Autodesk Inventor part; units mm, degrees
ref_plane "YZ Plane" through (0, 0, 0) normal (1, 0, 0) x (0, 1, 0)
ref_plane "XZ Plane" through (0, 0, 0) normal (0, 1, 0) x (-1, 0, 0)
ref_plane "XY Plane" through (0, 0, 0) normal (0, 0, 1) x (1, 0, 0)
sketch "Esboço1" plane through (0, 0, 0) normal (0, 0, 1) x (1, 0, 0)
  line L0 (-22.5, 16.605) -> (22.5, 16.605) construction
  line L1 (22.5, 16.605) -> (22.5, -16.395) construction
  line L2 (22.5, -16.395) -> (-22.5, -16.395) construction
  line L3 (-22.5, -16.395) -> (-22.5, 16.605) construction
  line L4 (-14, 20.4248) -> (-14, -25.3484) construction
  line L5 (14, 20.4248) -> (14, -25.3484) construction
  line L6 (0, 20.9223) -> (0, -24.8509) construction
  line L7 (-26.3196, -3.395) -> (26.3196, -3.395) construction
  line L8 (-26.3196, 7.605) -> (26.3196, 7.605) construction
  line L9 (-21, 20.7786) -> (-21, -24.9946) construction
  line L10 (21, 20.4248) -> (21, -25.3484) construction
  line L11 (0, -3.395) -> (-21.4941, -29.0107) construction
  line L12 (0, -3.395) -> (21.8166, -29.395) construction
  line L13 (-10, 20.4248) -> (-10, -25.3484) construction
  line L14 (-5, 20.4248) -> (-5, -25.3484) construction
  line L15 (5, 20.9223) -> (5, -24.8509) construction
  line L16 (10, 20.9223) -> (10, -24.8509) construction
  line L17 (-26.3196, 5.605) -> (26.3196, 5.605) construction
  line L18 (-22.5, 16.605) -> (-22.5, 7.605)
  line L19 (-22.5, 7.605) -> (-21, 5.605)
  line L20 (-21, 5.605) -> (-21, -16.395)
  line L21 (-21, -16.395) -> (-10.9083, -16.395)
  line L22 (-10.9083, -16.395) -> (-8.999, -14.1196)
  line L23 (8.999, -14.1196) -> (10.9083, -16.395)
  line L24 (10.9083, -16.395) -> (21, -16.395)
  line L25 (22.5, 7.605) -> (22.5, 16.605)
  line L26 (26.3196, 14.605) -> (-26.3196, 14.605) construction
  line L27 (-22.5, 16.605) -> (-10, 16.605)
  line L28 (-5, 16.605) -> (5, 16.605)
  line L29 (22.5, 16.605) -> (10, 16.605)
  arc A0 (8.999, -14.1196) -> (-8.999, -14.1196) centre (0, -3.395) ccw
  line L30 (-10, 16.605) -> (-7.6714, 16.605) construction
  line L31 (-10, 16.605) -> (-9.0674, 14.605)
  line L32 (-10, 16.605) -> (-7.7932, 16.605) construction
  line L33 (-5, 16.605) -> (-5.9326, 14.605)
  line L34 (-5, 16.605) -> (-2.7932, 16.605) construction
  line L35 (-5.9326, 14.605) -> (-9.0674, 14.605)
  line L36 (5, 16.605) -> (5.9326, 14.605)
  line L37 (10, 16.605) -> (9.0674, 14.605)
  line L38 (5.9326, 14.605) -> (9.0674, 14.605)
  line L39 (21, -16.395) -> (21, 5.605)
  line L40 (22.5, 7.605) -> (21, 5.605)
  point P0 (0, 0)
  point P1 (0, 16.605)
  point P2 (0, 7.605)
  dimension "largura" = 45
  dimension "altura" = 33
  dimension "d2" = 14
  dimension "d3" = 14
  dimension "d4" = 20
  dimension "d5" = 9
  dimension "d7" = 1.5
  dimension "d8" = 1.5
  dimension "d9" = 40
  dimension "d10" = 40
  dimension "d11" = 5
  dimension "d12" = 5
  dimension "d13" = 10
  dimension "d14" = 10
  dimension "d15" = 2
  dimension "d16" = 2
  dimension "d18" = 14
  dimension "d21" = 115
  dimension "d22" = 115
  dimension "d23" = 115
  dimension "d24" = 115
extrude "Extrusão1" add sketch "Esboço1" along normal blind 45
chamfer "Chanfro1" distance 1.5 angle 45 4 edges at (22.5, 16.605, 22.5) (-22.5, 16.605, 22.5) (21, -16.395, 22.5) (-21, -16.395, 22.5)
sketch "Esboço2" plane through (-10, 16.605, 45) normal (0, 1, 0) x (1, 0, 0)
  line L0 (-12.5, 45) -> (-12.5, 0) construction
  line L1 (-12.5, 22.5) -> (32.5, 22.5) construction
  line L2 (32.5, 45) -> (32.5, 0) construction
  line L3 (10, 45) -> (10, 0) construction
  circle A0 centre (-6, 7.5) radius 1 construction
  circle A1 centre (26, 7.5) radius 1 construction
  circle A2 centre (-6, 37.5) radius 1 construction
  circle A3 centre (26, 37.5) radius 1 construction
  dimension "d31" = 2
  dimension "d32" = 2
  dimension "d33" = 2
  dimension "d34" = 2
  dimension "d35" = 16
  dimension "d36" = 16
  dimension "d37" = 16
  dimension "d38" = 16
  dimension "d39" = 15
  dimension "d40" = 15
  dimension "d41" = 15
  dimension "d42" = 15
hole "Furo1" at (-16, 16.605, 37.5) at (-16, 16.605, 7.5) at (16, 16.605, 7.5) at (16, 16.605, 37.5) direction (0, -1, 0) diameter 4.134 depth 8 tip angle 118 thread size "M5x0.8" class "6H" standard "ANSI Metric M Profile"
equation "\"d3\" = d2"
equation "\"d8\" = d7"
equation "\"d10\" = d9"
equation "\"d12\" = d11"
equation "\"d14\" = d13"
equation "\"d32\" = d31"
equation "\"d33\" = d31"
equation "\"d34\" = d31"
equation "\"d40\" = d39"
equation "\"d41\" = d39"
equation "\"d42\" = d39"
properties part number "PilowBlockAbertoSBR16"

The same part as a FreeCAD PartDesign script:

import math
import FreeCAD as App
import Part
import Sketcher
Q = App.Units.Quantity


def edges_at(feature, points):
    """Names of the edges that pass closest to the given points."""
    edges = feature.Shape.Edges
    near = lambda p: min(range(len(edges)), key=lambda i: edges[i].distToShape(Part.Vertex(*p))[0])
    return sorted({f"Edge{near(p) + 1}" for p in points})

doc = App.newDocument("Part")
body = doc.addObject("PartDesign::Body", "Body")

sketch1 = body.newObject("Sketcher::SketchObject", "Sketch")
sketch1.AttachmentSupport = (doc.getObject("XY_Plane"), [""])
sketch1.MapMode = "FlatFace"
sketch1.addGeometry(Part.LineSegment(App.Vector(-10, 16.6, 0), App.Vector(-22.5, 16.6, 0)), False)
sketch1.addGeometry(Part.LineSegment(App.Vector(-22.5, 16.6, 0), App.Vector(-22.5, 7.6, 0)), False)
sketch1.addGeometry(Part.LineSegment(App.Vector(-22.5, 7.6, 0), App.Vector(-21, 5.6, 0)), False)
sketch1.addGeometry(Part.LineSegment(App.Vector(-21, 5.6, 0), App.Vector(-21, -16.4, 0)), False)
sketch1.addGeometry(Part.LineSegment(App.Vector(-21, -16.4, 0), App.Vector(-10.9, -16.4, 0)), False)
sketch1.addGeometry(Part.LineSegment(App.Vector(-10.9, -16.4, 0), App.Vector(-9, -14.1, 0)), False)
sketch1.addGeometry(Part.ArcOfCircle(Part.Circle(App.Vector(0, -3.4, 0), App.Vector(0, 0, 1), 14), math.radians(-50), math.radians(230)), False)
sketch1.addGeometry(Part.LineSegment(App.Vector(9, -14.1, 0), App.Vector(10.9, -16.4, 0)), False)
sketch1.addGeometry(Part.LineSegment(App.Vector(10.9, -16.4, 0), App.Vector(21, -16.4, 0)), False)
sketch1.addGeometry(Part.LineSegment(App.Vector(21, -16.4, 0), App.Vector(21, 5.6, 0)), False)
sketch1.addGeometry(Part.LineSegment(App.Vector(21, 5.6, 0), App.Vector(22.5, 7.6, 0)), False)
sketch1.addGeometry(Part.LineSegment(App.Vector(22.5, 7.6, 0), App.Vector(22.5, 16.6, 0)), False)
sketch1.addGeometry(Part.LineSegment(App.Vector(22.5, 16.6, 0), App.Vector(10, 16.6, 0)), False)
sketch1.addGeometry(Part.LineSegment(App.Vector(10, 16.6, 0), App.Vector(9.1, 14.6, 0)), False)
sketch1.addGeometry(Part.LineSegment(App.Vector(9.1, 14.6, 0), App.Vector(5.9, 14.6, 0)), False)
sketch1.addGeometry(Part.LineSegment(App.Vector(5.9, 14.6, 0), App.Vector(5, 16.6, 0)), False)
sketch1.addGeometry(Part.LineSegment(App.Vector(5, 16.6, 0), App.Vector(-5, 16.6, 0)), False)
sketch1.addGeometry(Part.LineSegment(App.Vector(-5, 16.6, 0), App.Vector(-5.9, 14.6, 0)), False)
sketch1.addGeometry(Part.LineSegment(App.Vector(-5.9, 14.6, 0), App.Vector(-9.1, 14.6, 0)), False)
sketch1.addGeometry(Part.LineSegment(App.Vector(-9.1, 14.6, 0), App.Vector(-10, 16.6, 0)), False)
sketch1.addConstraint(Sketcher.Constraint("Coincident", 0, 2, 1, 1))
sketch1.addConstraint(Sketcher.Constraint("Coincident", 1, 2, 2, 1))
sketch1.addConstraint(Sketcher.Constraint("Coincident", 2, 2, 3, 1))
sketch1.addConstraint(Sketcher.Constraint("Coincident", 3, 2, 4, 1))
sketch1.addConstraint(Sketcher.Constraint("Coincident", 4, 2, 5, 1))
sketch1.addConstraint(Sketcher.Constraint("Coincident", 5, 2, 6, 2))
sketch1.addConstraint(Sketcher.Constraint("Coincident", 6, 1, 7, 1))
sketch1.addConstraint(Sketcher.Constraint("Coincident", 7, 2, 8, 1))
sketch1.addConstraint(Sketcher.Constraint("Coincident", 8, 2, 9, 1))
sketch1.addConstraint(Sketcher.Constraint("Coincident", 9, 2, 10, 1))
sketch1.addConstraint(Sketcher.Constraint("Coincident", 10, 2, 11, 1))
sketch1.addConstraint(Sketcher.Constraint("Coincident", 11, 2, 12, 1))
sketch1.addConstraint(Sketcher.Constraint("Coincident", 12, 2, 13, 1))
sketch1.addConstraint(Sketcher.Constraint("Coincident", 13, 2, 14, 1))
sketch1.addConstraint(Sketcher.Constraint("Coincident", 14, 2, 15, 1))
sketch1.addConstraint(Sketcher.Constraint("Coincident", 15, 2, 16, 1))
sketch1.addConstraint(Sketcher.Constraint("Coincident", 16, 2, 17, 1))
sketch1.addConstraint(Sketcher.Constraint("Coincident", 17, 2, 18, 1))
sketch1.addConstraint(Sketcher.Constraint("Coincident", 18, 2, 19, 1))
sketch1.addConstraint(Sketcher.Constraint("Coincident", 19, 2, 0, 1))
sketch1.addConstraint(Sketcher.Constraint("Horizontal", 0))
sketch1.addConstraint(Sketcher.Constraint("Vertical", 1))
sketch1.addConstraint(Sketcher.Constraint("Vertical", 3))
sketch1.addConstraint(Sketcher.Constraint("Horizontal", 4))
sketch1.addConstraint(Sketcher.Constraint("Horizontal", 8))
sketch1.addConstraint(Sketcher.Constraint("Vertical", 9))
sketch1.addConstraint(Sketcher.Constraint("Vertical", 11))
sketch1.addConstraint(Sketcher.Constraint("Horizontal", 12))
sketch1.addConstraint(Sketcher.Constraint("Horizontal", 14))
sketch1.addConstraint(Sketcher.Constraint("Horizontal", 16))
sketch1.addConstraint(Sketcher.Constraint("Horizontal", 18))
sketch1.addConstraint(Sketcher.Constraint("Symmetric", 5, 2, 6, 1, -2))
sketch1.addConstraint(Sketcher.Constraint("Symmetric", 4, 2, 7, 2, -2))
sketch1.addConstraint(Sketcher.Constraint("Symmetric", 2, 2, 9, 2, -2))
sketch1.addConstraint(Sketcher.Constraint("Symmetric", 1, 2, 10, 2, -2))
sketch1.addConstraint(Sketcher.Constraint("Symmetric", 14, 2, 17, 2, -2))
sketch1.addConstraint(Sketcher.Constraint("Symmetric", 12, 2, 19, 2, -2))
sketch1.addConstraint(Sketcher.Constraint("Parallel", 13, 17))
sketch1.addConstraint(Sketcher.Constraint("Parallel", 15, 19))
sketch1.addConstraint(Sketcher.Constraint("Horizontal", 12, 2, 15, 2))
sketch1.addConstraint(Sketcher.Constraint("Equal", 14, 18))
sketch1.addConstraint(Sketcher.Constraint("Radius", 6, Q("14 mm")))
sketch1.addConstraint(Sketcher.Constraint("DistanceX", 16, 2, 16, 1, Q("10 mm")))
sketch1.addConstraint(Sketcher.Constraint("DistanceY", 1, 2, 1, 1, Q("9 mm")))
sketch1.addConstraint(Sketcher.Constraint("Angle", 13, Q("-114.9996 deg")))
sketch1.addConstraint(Sketcher.Constraint("DistanceX", -1, 1, 12, 2, Q("10 mm")))
sketch1.addConstraint(Sketcher.Constraint("DistanceY", 6, 3, 0, 2, Q("20 mm")))
sketch1.addConstraint(Sketcher.Constraint("DistanceY", 2, 2, 1, 2, Q("2 mm")))
sketch1.addConstraint(Sketcher.Constraint("DistanceY", 3, 2, 0, 2, Q("33 mm")))
sketch1.addConstraint(Sketcher.Constraint("DistanceY", 13, 2, 12, 2, Q("2 mm")))
sketch1.addConstraint(Sketcher.Constraint("DistanceX", 1, 2, 2, 2, Q("1.5 mm")))
sketch1.addConstraint(Sketcher.Constraint("Angle", 5, Q("49.9998 deg")))
sketch1.addConstraint(Sketcher.Constraint("DistanceX", 0, 2, 0, 1, Q("12.5 mm")))
sketch1.addConstraint(Sketcher.Constraint("DistanceX", 4, 1, 4, 2, Q("10.0917 mm")))
sketch1.addConstraint(Sketcher.Constraint("DistanceY", 6, 3, -1, 1, Q("3.395 mm")))
pad1 = body.newObject("PartDesign::Pad", "Pad")
pad1.Profile = sketch1
pad1.Length = 45
doc.recompute()

chamfer = body.newObject("PartDesign::Chamfer", "Chamfer")
chamfer.Base = (pad1, edges_at(pad1, [
    (22.5, 16.605, 22.5),
    (-22.5, 16.605, 22.5),
    (21, -16.395, 22.5),
    (-21, -16.395, 22.5),
]))
chamfer.Size = 1.5

sketch2 = body.newObject("Sketcher::SketchObject", "Sketch001")
sketch2.AttachmentSupport = (doc.getObject("XZ_Plane"), [""])
sketch2.MapMode = "FlatFace"
sketch2.AttachmentOffset = App.Placement(App.Vector(0, 0, -16.605), App.Rotation())
sketch2.addGeometry(Part.Circle(App.Vector(-16, 37.5, 0), App.Vector(0, 0, 1), 2.1), False)
sketch2.addGeometry(Part.Circle(App.Vector(-16, 7.5, 0), App.Vector(0, 0, 1), 2.1), False)
sketch2.addGeometry(Part.Circle(App.Vector(16, 7.5, 0), App.Vector(0, 0, 1), 2.1), False)
sketch2.addGeometry(Part.Circle(App.Vector(16, 37.5, 0), App.Vector(0, 0, 1), 2.1), False)
sketch2.addConstraint(Sketcher.Constraint("Equal", 0, 1))
sketch2.addConstraint(Sketcher.Constraint("Equal", 1, 2))
sketch2.addConstraint(Sketcher.Constraint("Equal", 2, 3))
sketch2.addConstraint(Sketcher.Constraint("Symmetric", 1, 3, 2, 3, -2))
sketch2.addConstraint(Sketcher.Constraint("Symmetric", 0, 3, 3, 3, -2))
sketch2.addConstraint(Sketcher.Constraint("Vertical", 0, 3, 1, 3))
sketch2.addConstraint(Sketcher.Constraint("Diameter", 0, Q("4.134 mm")))
sketch2.addConstraint(Sketcher.Constraint("DistanceX", 0, 3, -1, 1, Q("16 mm")))
sketch2.addConstraint(Sketcher.Constraint("DistanceY", 1, 3, 0, 3, Q("30 mm")))
sketch2.addConstraint(Sketcher.Constraint("DistanceY", -1, 1, 0, 3, Q("37.5 mm")))
doc.recompute()
hole = body.newObject("PartDesign::Hole", "Hole")
hole.Profile = sketch2
hole.ThreadType = "None"
hole.Diameter = 4.134
hole.DepthType = "Dimension"
hole.Depth = 8
hole.DrillPoint = "Angled"
hole.DrillPointAngle = 118
hole.Reversed = True

doc.recompute()
